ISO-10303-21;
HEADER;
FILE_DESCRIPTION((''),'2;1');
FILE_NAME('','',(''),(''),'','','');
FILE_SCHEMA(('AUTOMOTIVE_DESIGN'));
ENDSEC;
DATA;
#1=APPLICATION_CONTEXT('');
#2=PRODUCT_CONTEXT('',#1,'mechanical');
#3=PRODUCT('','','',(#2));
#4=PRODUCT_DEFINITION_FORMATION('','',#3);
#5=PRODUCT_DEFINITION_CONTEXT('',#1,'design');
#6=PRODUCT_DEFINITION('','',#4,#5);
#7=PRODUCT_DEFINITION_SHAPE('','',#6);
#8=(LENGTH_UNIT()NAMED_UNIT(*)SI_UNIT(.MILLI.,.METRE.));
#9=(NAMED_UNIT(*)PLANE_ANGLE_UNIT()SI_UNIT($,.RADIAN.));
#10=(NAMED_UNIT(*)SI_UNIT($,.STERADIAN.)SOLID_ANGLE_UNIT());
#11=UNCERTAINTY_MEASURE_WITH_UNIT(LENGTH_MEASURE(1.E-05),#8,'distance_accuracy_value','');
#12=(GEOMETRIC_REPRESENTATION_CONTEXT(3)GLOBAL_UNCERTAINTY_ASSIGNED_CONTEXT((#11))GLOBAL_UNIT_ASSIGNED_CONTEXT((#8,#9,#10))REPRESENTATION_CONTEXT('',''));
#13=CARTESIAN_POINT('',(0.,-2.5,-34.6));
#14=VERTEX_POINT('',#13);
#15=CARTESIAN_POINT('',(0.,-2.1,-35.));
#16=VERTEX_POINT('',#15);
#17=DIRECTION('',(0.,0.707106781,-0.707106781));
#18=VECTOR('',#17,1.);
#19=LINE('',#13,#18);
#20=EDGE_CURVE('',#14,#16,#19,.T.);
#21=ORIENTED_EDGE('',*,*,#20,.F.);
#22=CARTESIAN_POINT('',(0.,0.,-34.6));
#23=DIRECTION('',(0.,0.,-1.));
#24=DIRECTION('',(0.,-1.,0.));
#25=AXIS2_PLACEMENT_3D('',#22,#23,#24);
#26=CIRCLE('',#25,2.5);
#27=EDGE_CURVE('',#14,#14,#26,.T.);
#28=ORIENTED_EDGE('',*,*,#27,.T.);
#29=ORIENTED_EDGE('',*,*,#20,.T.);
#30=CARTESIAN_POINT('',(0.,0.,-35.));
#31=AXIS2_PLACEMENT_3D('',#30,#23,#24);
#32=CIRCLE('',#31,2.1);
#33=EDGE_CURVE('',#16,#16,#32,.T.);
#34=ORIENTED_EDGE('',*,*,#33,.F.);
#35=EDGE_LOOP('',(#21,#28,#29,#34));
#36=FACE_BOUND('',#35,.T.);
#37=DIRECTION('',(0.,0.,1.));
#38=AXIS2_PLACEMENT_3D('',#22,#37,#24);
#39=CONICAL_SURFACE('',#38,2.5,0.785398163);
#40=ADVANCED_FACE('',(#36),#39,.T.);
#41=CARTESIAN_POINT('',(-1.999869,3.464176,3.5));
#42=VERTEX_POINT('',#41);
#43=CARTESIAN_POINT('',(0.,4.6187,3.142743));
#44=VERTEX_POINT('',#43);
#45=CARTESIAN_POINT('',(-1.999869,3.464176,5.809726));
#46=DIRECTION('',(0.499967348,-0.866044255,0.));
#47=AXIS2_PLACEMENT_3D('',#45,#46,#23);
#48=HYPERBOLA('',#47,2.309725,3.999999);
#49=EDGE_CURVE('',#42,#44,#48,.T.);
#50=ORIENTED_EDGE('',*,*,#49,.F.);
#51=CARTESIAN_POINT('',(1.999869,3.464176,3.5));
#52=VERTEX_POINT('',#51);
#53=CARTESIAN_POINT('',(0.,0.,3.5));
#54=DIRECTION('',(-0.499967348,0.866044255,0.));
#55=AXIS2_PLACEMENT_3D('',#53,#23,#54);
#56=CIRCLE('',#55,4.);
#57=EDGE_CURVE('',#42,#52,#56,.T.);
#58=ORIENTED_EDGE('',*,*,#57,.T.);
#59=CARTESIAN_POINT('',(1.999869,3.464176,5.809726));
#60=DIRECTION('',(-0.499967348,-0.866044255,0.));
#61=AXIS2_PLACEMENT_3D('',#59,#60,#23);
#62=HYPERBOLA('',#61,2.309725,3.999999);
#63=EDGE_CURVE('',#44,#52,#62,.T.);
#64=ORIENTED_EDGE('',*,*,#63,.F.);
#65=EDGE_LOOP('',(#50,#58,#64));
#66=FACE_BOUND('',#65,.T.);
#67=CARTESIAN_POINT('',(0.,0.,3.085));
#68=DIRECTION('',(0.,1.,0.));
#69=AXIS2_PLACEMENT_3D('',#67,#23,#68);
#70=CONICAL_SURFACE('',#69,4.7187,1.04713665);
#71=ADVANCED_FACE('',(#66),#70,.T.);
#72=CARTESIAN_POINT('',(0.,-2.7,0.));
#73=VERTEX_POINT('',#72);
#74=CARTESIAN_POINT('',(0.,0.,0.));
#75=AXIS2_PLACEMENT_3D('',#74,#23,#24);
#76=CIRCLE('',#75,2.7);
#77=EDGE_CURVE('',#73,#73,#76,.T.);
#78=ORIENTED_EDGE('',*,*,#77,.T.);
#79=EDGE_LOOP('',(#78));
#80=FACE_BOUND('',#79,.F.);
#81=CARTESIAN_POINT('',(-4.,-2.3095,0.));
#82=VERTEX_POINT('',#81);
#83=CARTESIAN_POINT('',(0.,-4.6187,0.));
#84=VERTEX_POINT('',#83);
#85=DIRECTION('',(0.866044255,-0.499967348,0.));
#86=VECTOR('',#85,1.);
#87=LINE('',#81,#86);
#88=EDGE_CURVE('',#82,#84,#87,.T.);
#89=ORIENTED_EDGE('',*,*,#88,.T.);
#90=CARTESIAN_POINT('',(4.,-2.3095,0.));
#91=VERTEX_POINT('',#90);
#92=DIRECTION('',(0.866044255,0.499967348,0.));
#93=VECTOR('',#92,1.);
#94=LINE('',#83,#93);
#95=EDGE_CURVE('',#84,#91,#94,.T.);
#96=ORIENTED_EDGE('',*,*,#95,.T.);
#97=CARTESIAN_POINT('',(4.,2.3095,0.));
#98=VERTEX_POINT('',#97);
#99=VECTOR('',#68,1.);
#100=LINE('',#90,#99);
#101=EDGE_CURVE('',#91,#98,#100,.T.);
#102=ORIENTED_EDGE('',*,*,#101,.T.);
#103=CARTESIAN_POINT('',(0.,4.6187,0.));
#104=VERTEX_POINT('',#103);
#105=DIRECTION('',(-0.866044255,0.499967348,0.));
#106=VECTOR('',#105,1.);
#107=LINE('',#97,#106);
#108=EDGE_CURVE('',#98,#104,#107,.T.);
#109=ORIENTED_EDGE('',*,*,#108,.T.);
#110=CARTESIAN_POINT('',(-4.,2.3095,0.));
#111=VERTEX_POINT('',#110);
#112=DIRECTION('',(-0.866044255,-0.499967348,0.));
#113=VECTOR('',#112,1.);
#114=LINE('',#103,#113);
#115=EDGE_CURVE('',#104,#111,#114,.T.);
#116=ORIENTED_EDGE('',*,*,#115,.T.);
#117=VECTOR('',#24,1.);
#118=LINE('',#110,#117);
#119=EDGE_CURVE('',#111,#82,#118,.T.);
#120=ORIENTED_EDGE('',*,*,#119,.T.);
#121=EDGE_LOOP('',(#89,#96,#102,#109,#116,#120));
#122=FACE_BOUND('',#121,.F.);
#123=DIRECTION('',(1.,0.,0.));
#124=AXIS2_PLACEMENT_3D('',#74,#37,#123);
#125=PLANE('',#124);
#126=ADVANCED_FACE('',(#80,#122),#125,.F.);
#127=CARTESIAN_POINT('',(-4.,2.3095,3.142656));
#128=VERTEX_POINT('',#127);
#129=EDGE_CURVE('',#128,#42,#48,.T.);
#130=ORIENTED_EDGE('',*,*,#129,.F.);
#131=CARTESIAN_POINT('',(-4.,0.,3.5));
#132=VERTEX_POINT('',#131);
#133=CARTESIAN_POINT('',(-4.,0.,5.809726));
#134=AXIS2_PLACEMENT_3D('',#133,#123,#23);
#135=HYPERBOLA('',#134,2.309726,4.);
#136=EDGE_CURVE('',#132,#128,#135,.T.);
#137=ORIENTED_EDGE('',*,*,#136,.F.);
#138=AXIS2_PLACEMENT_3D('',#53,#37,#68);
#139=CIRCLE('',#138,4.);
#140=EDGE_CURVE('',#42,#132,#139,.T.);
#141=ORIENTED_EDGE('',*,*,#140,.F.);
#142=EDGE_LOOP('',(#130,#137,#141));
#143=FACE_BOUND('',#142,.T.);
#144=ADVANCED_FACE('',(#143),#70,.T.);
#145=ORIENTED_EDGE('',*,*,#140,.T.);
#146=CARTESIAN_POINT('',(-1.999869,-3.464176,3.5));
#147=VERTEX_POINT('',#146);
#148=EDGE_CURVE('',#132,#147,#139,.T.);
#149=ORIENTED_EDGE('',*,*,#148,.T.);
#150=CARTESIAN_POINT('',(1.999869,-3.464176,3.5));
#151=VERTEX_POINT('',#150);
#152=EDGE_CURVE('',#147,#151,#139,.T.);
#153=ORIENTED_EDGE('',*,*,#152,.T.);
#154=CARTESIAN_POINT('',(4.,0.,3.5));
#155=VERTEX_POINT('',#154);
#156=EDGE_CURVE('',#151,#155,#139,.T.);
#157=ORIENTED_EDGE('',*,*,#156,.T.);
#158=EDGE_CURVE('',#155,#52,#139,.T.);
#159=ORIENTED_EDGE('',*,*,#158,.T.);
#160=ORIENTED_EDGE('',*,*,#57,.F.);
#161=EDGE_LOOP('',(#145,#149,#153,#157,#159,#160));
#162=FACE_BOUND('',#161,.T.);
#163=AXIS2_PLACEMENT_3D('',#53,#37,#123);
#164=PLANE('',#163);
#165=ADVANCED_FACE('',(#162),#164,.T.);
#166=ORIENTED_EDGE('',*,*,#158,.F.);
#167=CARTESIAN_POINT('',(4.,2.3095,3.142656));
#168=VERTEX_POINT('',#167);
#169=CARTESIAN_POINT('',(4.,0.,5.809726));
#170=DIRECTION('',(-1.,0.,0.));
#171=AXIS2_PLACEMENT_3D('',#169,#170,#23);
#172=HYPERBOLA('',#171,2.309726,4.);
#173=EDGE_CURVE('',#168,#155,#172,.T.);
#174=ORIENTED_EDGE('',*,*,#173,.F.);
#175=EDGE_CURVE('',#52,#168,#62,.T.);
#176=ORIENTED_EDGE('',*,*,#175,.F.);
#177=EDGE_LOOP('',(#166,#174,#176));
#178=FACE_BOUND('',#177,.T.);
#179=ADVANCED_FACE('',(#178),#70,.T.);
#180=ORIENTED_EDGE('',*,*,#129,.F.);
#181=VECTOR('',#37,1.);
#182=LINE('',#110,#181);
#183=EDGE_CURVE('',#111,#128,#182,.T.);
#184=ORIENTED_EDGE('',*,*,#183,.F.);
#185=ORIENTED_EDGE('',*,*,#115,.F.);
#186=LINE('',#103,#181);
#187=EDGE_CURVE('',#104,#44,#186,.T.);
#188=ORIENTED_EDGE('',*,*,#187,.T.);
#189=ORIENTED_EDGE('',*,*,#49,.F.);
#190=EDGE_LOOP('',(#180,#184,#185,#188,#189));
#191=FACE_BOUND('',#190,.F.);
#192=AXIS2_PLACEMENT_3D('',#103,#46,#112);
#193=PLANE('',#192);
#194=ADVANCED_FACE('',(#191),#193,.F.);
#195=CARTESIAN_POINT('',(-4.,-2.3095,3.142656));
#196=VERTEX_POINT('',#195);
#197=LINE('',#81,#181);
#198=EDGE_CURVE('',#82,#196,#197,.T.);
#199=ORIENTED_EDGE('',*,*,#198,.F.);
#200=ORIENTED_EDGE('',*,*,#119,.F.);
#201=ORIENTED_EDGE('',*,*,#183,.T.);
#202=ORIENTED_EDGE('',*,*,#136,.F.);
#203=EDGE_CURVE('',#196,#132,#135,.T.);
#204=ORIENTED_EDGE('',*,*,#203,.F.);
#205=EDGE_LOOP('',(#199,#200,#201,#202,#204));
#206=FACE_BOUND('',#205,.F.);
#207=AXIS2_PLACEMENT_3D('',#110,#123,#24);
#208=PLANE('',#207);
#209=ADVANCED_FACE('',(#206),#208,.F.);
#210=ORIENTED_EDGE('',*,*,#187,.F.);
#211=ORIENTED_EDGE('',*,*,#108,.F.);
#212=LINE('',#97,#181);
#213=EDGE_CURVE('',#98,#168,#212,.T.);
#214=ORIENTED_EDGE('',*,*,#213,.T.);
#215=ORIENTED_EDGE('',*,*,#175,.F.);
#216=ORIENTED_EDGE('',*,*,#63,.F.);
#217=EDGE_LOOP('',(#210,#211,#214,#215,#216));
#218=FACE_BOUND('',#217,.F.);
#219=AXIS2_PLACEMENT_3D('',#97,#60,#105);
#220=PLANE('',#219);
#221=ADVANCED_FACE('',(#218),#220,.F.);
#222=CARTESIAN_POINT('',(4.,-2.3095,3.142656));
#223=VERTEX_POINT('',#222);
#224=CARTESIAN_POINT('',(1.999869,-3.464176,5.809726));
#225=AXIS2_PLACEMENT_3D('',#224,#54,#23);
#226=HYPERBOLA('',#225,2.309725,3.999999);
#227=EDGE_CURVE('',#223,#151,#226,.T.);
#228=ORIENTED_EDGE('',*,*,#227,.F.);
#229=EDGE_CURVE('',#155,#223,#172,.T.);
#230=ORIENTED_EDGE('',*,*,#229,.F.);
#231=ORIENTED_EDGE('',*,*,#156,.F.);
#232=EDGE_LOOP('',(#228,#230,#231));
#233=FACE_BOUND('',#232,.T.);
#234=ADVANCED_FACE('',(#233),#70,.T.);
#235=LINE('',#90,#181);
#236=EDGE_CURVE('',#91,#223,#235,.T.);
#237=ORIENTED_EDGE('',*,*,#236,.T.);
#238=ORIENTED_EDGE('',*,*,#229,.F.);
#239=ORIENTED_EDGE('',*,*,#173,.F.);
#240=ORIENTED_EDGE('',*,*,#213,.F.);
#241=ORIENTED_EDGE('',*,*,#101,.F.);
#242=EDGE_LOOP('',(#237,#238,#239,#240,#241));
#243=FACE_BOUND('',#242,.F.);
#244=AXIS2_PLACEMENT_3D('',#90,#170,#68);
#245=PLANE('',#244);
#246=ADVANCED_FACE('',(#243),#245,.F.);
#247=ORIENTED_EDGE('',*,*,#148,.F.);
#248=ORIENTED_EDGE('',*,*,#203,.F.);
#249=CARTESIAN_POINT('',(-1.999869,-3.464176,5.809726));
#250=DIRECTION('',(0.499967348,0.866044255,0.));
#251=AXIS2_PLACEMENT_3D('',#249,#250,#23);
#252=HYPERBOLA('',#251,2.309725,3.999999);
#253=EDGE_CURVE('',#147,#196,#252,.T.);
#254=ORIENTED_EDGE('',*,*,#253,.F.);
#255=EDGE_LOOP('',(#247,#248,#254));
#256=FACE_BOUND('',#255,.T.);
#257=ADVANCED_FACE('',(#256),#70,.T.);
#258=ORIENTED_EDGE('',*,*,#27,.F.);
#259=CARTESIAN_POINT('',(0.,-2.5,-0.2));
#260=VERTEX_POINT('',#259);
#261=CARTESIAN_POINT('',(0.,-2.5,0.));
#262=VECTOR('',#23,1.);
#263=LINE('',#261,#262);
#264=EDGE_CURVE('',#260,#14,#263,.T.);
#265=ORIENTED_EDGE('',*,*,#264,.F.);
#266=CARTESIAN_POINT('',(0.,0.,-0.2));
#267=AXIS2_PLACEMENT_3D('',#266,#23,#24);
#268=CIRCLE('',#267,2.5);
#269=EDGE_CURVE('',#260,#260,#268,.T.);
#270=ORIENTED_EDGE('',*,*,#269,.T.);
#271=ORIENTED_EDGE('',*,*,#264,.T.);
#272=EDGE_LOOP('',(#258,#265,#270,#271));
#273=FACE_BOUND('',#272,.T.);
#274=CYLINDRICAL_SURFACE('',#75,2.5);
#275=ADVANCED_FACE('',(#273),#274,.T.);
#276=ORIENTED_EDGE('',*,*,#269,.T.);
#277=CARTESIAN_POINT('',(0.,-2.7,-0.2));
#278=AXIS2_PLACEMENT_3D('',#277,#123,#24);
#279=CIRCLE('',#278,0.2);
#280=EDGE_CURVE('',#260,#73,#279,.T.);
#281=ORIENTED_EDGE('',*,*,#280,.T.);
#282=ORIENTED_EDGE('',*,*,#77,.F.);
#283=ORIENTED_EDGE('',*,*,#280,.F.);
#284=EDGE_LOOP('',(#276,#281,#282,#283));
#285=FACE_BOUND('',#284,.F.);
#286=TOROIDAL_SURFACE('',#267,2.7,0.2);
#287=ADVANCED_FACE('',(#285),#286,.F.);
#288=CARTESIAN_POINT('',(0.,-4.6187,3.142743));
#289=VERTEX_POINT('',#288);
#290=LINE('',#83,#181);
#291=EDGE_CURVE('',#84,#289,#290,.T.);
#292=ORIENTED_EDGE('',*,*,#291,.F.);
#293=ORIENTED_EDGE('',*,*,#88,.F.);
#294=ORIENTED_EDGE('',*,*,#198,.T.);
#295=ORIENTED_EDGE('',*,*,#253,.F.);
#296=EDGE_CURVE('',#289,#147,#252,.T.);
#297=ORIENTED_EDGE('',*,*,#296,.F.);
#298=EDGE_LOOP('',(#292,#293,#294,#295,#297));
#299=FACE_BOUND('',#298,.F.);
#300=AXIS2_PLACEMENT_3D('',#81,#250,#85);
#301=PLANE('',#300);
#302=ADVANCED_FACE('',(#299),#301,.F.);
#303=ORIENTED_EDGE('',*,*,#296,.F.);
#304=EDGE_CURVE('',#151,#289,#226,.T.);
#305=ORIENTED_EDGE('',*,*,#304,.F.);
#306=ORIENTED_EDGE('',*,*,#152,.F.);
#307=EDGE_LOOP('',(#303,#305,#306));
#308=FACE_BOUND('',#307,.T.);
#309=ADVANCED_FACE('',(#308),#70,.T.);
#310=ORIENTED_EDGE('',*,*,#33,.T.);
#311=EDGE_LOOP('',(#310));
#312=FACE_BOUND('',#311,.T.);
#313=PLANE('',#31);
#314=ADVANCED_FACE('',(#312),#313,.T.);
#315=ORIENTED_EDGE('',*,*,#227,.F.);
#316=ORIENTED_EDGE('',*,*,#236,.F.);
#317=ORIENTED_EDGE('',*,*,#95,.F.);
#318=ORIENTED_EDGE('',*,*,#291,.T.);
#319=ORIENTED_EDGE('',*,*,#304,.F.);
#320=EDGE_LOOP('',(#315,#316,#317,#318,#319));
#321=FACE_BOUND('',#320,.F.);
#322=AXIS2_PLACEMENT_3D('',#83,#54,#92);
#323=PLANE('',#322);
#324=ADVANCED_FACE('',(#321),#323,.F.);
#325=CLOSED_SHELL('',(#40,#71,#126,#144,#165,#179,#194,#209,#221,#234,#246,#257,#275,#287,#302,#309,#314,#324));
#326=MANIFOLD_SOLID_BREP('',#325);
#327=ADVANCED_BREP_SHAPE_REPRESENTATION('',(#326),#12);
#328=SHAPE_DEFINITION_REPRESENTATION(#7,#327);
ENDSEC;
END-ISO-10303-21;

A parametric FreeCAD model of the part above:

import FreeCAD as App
import Part
import Sketcher

V = App.Vector


def edges_at(feature, points):
    """Names of the edges that pass closest to the given points."""
    edges = feature.Shape.Edges
    near = lambda p: min(range(len(edges)), key=lambda i: edges[i].distToShape(Part.Vertex(*p))[0])
    return sorted({f"Edge{near(p) + 1}" for p in points})

doc = App.newDocument("Part")
params = doc.addObject("Spreadsheet::Sheet", "Params")
for row, (alias, value) in enumerate([
    ("pad1_length", "3.5 mm"),
    ("sketch2_length", "0.83 mm"),
    ("groove_angle", "360 deg"),
    ("sketch3_height", "35 mm"),
    ("sketch3_width", "2.5 mm"),
    ("revolution_angle", "360 deg"),
    ("chamfer_size", "0.4 mm"),
    ("fillet_radius", "0.2 mm"),
], start=1):
    params.set(f"A{row}", alias)
    params.set(f"B{row}", "=" + value)
    params.setAlias(f"B{row}", alias)

body = doc.addObject("PartDesign::Body", "Body")

sketch1 = body.newObject("Sketcher::SketchObject", "Sketch")
sketch1.AttachmentSupport = (doc.getObject("XY_Plane"), [""])
sketch1.MapMode = "FlatFace"
sketch1.addGeometry([
    Part.LineSegment(V(0, 4.6, 0), V(-4, 2.3, 0)),
    Part.LineSegment(V(-4, 2.3, 0), V(-4, -2.3, 0)),
    Part.LineSegment(V(-4, -2.3, 0), V(0, -4.6, 0)),
    Part.LineSegment(V(0, -4.6, 0), V(4, -2.3, 0)),
    Part.LineSegment(V(4, -2.3, 0), V(4, 2.3, 0)),
    Part.LineSegment(V(4, 2.3, 0), V(0, 4.6, 0)),
], False)
sketch1.addConstraint([
    Sketcher.Constraint("Coincident", 0, 2, 1, 1),
    Sketcher.Constraint("Coincident", 1, 2, 2, 1),
    Sketcher.Constraint("Coincident", 2, 2, 3, 1),
    Sketcher.Constraint("Coincident", 3, 2, 4, 1),
    Sketcher.Constraint("Coincident", 4, 2, 5, 1),
    Sketcher.Constraint("Coincident", 5, 2, 0, 1),
    Sketcher.Constraint("Vertical", 1),
    Sketcher.Constraint("Vertical", 4),
    Sketcher.Constraint("Symmetric", 0, 2, 3, 2, -1, 1),
    Sketcher.Constraint("Symmetric", 2, 2, 5, 2, -1, 1),
    Sketcher.Constraint("PointOnObject", 2, 2, -2),
    Sketcher.Constraint("Parallel", 2, 5),
    Sketcher.Constraint("Horizontal", 1, 2, 3, 2),
    Sketcher.Constraint("DistanceX", 1, 2, 3, 2, 8.0),
    Sketcher.Constraint("DistanceY", 1, 2, 1, 1, 4.619),
    Sketcher.Constraint("Distance", 0, 4.6187),
])
pad1 = body.newObject("PartDesign::Pad", "Pad")
pad1.Profile = sketch1
pad1.setExpression("Length", "Params.pad1_length")

sketch2 = body.newObject("Sketcher::SketchObject", "Sketch001")
sketch2.AttachmentSupport = (doc.getObject("YZ_Plane"), [""])
sketch2.MapMode = "FlatFace"
sketch2.addGeometry([
    Part.LineSegment(V(4, 3.5, 0), V(4.72, 3.08, 0)),
    Part.LineSegment(V(4.72, 3.08, 0), V(4.72, 3.5, 0)),
    Part.LineSegment(V(4.72, 3.5, 0), V(4, 3.5, 0)),
], False)
sketch2.addConstraint([
    Sketcher.Constraint("Coincident", 0, 2, 1, 1),
    Sketcher.Constraint("Coincident", 1, 2, 2, 1),
    Sketcher.Constraint("Coincident", 2, 2, 0, 1),
    Sketcher.Constraint("Vertical", 1),
    Sketcher.Constraint("Horizontal", 2),
    Sketcher.Constraint("DistanceX", -1, 1, 2, 2, 4.0),
    Sketcher.Constraint("DistanceY", -1, 1, 1, 2, 3.5),
    Sketcher.Constraint("Distance", 0, 0.83),
    Sketcher.Constraint("DistanceY", 1, 1, 1, 2, 0.415),
])
sketch2.setExpression("Constraints[7]", "Params.sketch2_length")
groove = body.newObject("PartDesign::Groove", "Groove")
groove.Profile = sketch2
groove.ReferenceAxis = (sketch2, ["V_Axis"])
groove.setExpression("Angle", "Params.groove_angle")

sketch3 = body.newObject("Sketcher::SketchObject", "Sketch002")
sketch3.AttachmentSupport = (doc.getObject("YZ_Plane"), [""])
sketch3.MapMode = "FlatFace"
sketch3.addGeometry([
    Part.LineSegment(V(-2.5, -35, 0), V(0, -35, 0)),
    Part.LineSegment(V(0, -35, 0), V(0, 0, 0)),
    Part.LineSegment(V(0, 0, 0), V(-2.5, 0, 0)),
    Part.LineSegment(V(-2.5, 0, 0), V(-2.5, -35, 0)),
], False)
sketch3.addConstraint([
    Sketcher.Constraint("Coincident", 0, 2, 1, 1),
    Sketcher.Constraint("Coincident", 1, 2, 2, 1),
    Sketcher.Constraint("Coincident", 2, 2, 3, 1),
    Sketcher.Constraint("Coincident", 3, 2, 0, 1),
    Sketcher.Constraint("Horizontal", 0),
    Sketcher.Constraint("Vertical", 1),
    Sketcher.Constraint("Horizontal", 2),
    Sketcher.Constraint("Vertical", 3),
    Sketcher.Constraint("Coincident", 1, 2, -1, 1),
    Sketcher.Constraint("DistanceY", 1, 1, 1, 2, 35.0),
    Sketcher.Constraint("DistanceX", 0, 1, 0, 2, 2.5),
])
sketch3.setExpression("Constraints[9]", "Params.sketch3_height")
sketch3.setExpression("Constraints[10]", "Params.sketch3_width")
revolution = body.newObject("PartDesign::Revolution", "Revolution")
revolution.Profile = sketch3
revolution.ReferenceAxis = (sketch3, ["V_Axis"])
revolution.setExpression("Angle", "Params.revolution_angle")
doc.recompute()

chamfer = body.newObject("PartDesign::Chamfer", "Chamfer")
chamfer.Base = (revolution, edges_at(revolution, [(0, 2.5, -35)]))
chamfer.setExpression("Size", "Params.chamfer_size")
doc.recompute()

fillet = body.newObject("PartDesign::Fillet", "Fillet")
fillet.Base = (chamfer, edges_at(chamfer, [(0, 2.5, 0)]))
fillet.setExpression("Radius", "Params.fillet_radius")

doc.recompute()
